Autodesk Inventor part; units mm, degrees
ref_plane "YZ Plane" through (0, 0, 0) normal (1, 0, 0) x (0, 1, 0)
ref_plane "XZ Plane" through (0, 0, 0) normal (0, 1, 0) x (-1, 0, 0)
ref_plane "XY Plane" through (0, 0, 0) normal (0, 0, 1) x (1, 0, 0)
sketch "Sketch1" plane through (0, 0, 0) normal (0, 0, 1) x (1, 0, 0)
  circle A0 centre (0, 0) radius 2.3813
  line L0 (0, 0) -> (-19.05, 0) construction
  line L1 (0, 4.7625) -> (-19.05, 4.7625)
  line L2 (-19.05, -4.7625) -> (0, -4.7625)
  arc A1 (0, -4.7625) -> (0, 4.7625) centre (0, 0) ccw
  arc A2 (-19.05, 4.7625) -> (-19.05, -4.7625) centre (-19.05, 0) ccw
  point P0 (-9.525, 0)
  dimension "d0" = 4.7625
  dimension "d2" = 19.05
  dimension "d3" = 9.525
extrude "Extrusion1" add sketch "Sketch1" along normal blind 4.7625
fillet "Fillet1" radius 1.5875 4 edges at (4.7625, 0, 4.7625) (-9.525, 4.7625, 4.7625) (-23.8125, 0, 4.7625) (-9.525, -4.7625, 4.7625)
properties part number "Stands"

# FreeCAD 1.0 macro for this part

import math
import FreeCAD as App
import Part
import Sketcher
Q = App.Units.Quantity


def edges_at(feature, points):
    """Names of the edges that pass closest to the given points."""
    edges = feature.Shape.Edges
    near = lambda p: min(range(len(edges)), key=lambda i: edges[i].distToShape(Part.Vertex(*p))[0])
    return sorted({f"Edge{near(p) + 1}" for p in points})

doc = App.newDocument("Part")
body = doc.addObject("PartDesign::Body", "Body")

# Sketch on XY plane
sketch1 = doc.addObject("Sketcher::SketchObject", "Sketch")
body.addObject(sketch1)
sketch1.AttachmentSupport = (doc.XY_Plane, [""])
sketch1.MapMode = "FlatFace"
sketch1.addGeometry([
    Part.ArcOfCircle(Part.Circle(App.Vector(0, 0, 0), App.Vector(0, 0, 1), 4.7625), math.radians(-90), math.radians(90)),  # 0
    Part.LineSegment(App.Vector(0, 4.7625, 0), App.Vector(-19.05, 4.7625, 0)),  # 1
    Part.ArcOfCircle(Part.Circle(App.Vector(-19.05, 0, 0), App.Vector(0, 0, 1), 4.7625), math.radians(90), math.radians(270)),  # 2
    Part.LineSegment(App.Vector(-19.05, -4.7625, 0), App.Vector(0, -4.7625, 0)),  # 3
    Part.Circle(App.Vector(0, 0, 0), App.Vector(0, 0, 1), 2.3813),  # 4
], False)
sketch1.addConstraint([
    Sketcher.Constraint("Tangent", 0, 2, 1, 1),
    Sketcher.Constraint("Tangent", 1, 2, 2, 1),
    Sketcher.Constraint("Tangent", 2, 2, 3, 1),
    Sketcher.Constraint("Tangent", 3, 2, 0, 1),
    Sketcher.Constraint("Horizontal", 1),
    Sketcher.Constraint("Horizontal", 3),
    Sketcher.Constraint("Coincident", 0, 3, -1, 1),
    Sketcher.Constraint("Coincident", 4, 3, -1, 1),
    Sketcher.Constraint("Diameter", 4, Q("0.1875 in")),
    Sketcher.Constraint("Radius", 0, Q("0.1875 in")),
    Sketcher.Constraint("DistanceX", 1, 2, 1, 1, Q("0.75 in")),
])
pad1 = doc.addObject("PartDesign::Pad", "Pad")
body.addObject(pad1)
pad1.Profile = sketch1
pad1.Length = Q("0.1875 in")
doc.recompute()

fillet = doc.addObject("PartDesign::Fillet", "Fillet")
body.addObject(fillet)
fillet.Base = (pad1, edges_at(pad1, [
    (4.763, 0, 4.763),
    (-9.525, 4.763, 4.763),
    (-23.812, 0, 4.763),
    (-9.525, -4.763, 4.763),
]))
fillet.Radius = Q("0.0625 in")

doc.recompute()
